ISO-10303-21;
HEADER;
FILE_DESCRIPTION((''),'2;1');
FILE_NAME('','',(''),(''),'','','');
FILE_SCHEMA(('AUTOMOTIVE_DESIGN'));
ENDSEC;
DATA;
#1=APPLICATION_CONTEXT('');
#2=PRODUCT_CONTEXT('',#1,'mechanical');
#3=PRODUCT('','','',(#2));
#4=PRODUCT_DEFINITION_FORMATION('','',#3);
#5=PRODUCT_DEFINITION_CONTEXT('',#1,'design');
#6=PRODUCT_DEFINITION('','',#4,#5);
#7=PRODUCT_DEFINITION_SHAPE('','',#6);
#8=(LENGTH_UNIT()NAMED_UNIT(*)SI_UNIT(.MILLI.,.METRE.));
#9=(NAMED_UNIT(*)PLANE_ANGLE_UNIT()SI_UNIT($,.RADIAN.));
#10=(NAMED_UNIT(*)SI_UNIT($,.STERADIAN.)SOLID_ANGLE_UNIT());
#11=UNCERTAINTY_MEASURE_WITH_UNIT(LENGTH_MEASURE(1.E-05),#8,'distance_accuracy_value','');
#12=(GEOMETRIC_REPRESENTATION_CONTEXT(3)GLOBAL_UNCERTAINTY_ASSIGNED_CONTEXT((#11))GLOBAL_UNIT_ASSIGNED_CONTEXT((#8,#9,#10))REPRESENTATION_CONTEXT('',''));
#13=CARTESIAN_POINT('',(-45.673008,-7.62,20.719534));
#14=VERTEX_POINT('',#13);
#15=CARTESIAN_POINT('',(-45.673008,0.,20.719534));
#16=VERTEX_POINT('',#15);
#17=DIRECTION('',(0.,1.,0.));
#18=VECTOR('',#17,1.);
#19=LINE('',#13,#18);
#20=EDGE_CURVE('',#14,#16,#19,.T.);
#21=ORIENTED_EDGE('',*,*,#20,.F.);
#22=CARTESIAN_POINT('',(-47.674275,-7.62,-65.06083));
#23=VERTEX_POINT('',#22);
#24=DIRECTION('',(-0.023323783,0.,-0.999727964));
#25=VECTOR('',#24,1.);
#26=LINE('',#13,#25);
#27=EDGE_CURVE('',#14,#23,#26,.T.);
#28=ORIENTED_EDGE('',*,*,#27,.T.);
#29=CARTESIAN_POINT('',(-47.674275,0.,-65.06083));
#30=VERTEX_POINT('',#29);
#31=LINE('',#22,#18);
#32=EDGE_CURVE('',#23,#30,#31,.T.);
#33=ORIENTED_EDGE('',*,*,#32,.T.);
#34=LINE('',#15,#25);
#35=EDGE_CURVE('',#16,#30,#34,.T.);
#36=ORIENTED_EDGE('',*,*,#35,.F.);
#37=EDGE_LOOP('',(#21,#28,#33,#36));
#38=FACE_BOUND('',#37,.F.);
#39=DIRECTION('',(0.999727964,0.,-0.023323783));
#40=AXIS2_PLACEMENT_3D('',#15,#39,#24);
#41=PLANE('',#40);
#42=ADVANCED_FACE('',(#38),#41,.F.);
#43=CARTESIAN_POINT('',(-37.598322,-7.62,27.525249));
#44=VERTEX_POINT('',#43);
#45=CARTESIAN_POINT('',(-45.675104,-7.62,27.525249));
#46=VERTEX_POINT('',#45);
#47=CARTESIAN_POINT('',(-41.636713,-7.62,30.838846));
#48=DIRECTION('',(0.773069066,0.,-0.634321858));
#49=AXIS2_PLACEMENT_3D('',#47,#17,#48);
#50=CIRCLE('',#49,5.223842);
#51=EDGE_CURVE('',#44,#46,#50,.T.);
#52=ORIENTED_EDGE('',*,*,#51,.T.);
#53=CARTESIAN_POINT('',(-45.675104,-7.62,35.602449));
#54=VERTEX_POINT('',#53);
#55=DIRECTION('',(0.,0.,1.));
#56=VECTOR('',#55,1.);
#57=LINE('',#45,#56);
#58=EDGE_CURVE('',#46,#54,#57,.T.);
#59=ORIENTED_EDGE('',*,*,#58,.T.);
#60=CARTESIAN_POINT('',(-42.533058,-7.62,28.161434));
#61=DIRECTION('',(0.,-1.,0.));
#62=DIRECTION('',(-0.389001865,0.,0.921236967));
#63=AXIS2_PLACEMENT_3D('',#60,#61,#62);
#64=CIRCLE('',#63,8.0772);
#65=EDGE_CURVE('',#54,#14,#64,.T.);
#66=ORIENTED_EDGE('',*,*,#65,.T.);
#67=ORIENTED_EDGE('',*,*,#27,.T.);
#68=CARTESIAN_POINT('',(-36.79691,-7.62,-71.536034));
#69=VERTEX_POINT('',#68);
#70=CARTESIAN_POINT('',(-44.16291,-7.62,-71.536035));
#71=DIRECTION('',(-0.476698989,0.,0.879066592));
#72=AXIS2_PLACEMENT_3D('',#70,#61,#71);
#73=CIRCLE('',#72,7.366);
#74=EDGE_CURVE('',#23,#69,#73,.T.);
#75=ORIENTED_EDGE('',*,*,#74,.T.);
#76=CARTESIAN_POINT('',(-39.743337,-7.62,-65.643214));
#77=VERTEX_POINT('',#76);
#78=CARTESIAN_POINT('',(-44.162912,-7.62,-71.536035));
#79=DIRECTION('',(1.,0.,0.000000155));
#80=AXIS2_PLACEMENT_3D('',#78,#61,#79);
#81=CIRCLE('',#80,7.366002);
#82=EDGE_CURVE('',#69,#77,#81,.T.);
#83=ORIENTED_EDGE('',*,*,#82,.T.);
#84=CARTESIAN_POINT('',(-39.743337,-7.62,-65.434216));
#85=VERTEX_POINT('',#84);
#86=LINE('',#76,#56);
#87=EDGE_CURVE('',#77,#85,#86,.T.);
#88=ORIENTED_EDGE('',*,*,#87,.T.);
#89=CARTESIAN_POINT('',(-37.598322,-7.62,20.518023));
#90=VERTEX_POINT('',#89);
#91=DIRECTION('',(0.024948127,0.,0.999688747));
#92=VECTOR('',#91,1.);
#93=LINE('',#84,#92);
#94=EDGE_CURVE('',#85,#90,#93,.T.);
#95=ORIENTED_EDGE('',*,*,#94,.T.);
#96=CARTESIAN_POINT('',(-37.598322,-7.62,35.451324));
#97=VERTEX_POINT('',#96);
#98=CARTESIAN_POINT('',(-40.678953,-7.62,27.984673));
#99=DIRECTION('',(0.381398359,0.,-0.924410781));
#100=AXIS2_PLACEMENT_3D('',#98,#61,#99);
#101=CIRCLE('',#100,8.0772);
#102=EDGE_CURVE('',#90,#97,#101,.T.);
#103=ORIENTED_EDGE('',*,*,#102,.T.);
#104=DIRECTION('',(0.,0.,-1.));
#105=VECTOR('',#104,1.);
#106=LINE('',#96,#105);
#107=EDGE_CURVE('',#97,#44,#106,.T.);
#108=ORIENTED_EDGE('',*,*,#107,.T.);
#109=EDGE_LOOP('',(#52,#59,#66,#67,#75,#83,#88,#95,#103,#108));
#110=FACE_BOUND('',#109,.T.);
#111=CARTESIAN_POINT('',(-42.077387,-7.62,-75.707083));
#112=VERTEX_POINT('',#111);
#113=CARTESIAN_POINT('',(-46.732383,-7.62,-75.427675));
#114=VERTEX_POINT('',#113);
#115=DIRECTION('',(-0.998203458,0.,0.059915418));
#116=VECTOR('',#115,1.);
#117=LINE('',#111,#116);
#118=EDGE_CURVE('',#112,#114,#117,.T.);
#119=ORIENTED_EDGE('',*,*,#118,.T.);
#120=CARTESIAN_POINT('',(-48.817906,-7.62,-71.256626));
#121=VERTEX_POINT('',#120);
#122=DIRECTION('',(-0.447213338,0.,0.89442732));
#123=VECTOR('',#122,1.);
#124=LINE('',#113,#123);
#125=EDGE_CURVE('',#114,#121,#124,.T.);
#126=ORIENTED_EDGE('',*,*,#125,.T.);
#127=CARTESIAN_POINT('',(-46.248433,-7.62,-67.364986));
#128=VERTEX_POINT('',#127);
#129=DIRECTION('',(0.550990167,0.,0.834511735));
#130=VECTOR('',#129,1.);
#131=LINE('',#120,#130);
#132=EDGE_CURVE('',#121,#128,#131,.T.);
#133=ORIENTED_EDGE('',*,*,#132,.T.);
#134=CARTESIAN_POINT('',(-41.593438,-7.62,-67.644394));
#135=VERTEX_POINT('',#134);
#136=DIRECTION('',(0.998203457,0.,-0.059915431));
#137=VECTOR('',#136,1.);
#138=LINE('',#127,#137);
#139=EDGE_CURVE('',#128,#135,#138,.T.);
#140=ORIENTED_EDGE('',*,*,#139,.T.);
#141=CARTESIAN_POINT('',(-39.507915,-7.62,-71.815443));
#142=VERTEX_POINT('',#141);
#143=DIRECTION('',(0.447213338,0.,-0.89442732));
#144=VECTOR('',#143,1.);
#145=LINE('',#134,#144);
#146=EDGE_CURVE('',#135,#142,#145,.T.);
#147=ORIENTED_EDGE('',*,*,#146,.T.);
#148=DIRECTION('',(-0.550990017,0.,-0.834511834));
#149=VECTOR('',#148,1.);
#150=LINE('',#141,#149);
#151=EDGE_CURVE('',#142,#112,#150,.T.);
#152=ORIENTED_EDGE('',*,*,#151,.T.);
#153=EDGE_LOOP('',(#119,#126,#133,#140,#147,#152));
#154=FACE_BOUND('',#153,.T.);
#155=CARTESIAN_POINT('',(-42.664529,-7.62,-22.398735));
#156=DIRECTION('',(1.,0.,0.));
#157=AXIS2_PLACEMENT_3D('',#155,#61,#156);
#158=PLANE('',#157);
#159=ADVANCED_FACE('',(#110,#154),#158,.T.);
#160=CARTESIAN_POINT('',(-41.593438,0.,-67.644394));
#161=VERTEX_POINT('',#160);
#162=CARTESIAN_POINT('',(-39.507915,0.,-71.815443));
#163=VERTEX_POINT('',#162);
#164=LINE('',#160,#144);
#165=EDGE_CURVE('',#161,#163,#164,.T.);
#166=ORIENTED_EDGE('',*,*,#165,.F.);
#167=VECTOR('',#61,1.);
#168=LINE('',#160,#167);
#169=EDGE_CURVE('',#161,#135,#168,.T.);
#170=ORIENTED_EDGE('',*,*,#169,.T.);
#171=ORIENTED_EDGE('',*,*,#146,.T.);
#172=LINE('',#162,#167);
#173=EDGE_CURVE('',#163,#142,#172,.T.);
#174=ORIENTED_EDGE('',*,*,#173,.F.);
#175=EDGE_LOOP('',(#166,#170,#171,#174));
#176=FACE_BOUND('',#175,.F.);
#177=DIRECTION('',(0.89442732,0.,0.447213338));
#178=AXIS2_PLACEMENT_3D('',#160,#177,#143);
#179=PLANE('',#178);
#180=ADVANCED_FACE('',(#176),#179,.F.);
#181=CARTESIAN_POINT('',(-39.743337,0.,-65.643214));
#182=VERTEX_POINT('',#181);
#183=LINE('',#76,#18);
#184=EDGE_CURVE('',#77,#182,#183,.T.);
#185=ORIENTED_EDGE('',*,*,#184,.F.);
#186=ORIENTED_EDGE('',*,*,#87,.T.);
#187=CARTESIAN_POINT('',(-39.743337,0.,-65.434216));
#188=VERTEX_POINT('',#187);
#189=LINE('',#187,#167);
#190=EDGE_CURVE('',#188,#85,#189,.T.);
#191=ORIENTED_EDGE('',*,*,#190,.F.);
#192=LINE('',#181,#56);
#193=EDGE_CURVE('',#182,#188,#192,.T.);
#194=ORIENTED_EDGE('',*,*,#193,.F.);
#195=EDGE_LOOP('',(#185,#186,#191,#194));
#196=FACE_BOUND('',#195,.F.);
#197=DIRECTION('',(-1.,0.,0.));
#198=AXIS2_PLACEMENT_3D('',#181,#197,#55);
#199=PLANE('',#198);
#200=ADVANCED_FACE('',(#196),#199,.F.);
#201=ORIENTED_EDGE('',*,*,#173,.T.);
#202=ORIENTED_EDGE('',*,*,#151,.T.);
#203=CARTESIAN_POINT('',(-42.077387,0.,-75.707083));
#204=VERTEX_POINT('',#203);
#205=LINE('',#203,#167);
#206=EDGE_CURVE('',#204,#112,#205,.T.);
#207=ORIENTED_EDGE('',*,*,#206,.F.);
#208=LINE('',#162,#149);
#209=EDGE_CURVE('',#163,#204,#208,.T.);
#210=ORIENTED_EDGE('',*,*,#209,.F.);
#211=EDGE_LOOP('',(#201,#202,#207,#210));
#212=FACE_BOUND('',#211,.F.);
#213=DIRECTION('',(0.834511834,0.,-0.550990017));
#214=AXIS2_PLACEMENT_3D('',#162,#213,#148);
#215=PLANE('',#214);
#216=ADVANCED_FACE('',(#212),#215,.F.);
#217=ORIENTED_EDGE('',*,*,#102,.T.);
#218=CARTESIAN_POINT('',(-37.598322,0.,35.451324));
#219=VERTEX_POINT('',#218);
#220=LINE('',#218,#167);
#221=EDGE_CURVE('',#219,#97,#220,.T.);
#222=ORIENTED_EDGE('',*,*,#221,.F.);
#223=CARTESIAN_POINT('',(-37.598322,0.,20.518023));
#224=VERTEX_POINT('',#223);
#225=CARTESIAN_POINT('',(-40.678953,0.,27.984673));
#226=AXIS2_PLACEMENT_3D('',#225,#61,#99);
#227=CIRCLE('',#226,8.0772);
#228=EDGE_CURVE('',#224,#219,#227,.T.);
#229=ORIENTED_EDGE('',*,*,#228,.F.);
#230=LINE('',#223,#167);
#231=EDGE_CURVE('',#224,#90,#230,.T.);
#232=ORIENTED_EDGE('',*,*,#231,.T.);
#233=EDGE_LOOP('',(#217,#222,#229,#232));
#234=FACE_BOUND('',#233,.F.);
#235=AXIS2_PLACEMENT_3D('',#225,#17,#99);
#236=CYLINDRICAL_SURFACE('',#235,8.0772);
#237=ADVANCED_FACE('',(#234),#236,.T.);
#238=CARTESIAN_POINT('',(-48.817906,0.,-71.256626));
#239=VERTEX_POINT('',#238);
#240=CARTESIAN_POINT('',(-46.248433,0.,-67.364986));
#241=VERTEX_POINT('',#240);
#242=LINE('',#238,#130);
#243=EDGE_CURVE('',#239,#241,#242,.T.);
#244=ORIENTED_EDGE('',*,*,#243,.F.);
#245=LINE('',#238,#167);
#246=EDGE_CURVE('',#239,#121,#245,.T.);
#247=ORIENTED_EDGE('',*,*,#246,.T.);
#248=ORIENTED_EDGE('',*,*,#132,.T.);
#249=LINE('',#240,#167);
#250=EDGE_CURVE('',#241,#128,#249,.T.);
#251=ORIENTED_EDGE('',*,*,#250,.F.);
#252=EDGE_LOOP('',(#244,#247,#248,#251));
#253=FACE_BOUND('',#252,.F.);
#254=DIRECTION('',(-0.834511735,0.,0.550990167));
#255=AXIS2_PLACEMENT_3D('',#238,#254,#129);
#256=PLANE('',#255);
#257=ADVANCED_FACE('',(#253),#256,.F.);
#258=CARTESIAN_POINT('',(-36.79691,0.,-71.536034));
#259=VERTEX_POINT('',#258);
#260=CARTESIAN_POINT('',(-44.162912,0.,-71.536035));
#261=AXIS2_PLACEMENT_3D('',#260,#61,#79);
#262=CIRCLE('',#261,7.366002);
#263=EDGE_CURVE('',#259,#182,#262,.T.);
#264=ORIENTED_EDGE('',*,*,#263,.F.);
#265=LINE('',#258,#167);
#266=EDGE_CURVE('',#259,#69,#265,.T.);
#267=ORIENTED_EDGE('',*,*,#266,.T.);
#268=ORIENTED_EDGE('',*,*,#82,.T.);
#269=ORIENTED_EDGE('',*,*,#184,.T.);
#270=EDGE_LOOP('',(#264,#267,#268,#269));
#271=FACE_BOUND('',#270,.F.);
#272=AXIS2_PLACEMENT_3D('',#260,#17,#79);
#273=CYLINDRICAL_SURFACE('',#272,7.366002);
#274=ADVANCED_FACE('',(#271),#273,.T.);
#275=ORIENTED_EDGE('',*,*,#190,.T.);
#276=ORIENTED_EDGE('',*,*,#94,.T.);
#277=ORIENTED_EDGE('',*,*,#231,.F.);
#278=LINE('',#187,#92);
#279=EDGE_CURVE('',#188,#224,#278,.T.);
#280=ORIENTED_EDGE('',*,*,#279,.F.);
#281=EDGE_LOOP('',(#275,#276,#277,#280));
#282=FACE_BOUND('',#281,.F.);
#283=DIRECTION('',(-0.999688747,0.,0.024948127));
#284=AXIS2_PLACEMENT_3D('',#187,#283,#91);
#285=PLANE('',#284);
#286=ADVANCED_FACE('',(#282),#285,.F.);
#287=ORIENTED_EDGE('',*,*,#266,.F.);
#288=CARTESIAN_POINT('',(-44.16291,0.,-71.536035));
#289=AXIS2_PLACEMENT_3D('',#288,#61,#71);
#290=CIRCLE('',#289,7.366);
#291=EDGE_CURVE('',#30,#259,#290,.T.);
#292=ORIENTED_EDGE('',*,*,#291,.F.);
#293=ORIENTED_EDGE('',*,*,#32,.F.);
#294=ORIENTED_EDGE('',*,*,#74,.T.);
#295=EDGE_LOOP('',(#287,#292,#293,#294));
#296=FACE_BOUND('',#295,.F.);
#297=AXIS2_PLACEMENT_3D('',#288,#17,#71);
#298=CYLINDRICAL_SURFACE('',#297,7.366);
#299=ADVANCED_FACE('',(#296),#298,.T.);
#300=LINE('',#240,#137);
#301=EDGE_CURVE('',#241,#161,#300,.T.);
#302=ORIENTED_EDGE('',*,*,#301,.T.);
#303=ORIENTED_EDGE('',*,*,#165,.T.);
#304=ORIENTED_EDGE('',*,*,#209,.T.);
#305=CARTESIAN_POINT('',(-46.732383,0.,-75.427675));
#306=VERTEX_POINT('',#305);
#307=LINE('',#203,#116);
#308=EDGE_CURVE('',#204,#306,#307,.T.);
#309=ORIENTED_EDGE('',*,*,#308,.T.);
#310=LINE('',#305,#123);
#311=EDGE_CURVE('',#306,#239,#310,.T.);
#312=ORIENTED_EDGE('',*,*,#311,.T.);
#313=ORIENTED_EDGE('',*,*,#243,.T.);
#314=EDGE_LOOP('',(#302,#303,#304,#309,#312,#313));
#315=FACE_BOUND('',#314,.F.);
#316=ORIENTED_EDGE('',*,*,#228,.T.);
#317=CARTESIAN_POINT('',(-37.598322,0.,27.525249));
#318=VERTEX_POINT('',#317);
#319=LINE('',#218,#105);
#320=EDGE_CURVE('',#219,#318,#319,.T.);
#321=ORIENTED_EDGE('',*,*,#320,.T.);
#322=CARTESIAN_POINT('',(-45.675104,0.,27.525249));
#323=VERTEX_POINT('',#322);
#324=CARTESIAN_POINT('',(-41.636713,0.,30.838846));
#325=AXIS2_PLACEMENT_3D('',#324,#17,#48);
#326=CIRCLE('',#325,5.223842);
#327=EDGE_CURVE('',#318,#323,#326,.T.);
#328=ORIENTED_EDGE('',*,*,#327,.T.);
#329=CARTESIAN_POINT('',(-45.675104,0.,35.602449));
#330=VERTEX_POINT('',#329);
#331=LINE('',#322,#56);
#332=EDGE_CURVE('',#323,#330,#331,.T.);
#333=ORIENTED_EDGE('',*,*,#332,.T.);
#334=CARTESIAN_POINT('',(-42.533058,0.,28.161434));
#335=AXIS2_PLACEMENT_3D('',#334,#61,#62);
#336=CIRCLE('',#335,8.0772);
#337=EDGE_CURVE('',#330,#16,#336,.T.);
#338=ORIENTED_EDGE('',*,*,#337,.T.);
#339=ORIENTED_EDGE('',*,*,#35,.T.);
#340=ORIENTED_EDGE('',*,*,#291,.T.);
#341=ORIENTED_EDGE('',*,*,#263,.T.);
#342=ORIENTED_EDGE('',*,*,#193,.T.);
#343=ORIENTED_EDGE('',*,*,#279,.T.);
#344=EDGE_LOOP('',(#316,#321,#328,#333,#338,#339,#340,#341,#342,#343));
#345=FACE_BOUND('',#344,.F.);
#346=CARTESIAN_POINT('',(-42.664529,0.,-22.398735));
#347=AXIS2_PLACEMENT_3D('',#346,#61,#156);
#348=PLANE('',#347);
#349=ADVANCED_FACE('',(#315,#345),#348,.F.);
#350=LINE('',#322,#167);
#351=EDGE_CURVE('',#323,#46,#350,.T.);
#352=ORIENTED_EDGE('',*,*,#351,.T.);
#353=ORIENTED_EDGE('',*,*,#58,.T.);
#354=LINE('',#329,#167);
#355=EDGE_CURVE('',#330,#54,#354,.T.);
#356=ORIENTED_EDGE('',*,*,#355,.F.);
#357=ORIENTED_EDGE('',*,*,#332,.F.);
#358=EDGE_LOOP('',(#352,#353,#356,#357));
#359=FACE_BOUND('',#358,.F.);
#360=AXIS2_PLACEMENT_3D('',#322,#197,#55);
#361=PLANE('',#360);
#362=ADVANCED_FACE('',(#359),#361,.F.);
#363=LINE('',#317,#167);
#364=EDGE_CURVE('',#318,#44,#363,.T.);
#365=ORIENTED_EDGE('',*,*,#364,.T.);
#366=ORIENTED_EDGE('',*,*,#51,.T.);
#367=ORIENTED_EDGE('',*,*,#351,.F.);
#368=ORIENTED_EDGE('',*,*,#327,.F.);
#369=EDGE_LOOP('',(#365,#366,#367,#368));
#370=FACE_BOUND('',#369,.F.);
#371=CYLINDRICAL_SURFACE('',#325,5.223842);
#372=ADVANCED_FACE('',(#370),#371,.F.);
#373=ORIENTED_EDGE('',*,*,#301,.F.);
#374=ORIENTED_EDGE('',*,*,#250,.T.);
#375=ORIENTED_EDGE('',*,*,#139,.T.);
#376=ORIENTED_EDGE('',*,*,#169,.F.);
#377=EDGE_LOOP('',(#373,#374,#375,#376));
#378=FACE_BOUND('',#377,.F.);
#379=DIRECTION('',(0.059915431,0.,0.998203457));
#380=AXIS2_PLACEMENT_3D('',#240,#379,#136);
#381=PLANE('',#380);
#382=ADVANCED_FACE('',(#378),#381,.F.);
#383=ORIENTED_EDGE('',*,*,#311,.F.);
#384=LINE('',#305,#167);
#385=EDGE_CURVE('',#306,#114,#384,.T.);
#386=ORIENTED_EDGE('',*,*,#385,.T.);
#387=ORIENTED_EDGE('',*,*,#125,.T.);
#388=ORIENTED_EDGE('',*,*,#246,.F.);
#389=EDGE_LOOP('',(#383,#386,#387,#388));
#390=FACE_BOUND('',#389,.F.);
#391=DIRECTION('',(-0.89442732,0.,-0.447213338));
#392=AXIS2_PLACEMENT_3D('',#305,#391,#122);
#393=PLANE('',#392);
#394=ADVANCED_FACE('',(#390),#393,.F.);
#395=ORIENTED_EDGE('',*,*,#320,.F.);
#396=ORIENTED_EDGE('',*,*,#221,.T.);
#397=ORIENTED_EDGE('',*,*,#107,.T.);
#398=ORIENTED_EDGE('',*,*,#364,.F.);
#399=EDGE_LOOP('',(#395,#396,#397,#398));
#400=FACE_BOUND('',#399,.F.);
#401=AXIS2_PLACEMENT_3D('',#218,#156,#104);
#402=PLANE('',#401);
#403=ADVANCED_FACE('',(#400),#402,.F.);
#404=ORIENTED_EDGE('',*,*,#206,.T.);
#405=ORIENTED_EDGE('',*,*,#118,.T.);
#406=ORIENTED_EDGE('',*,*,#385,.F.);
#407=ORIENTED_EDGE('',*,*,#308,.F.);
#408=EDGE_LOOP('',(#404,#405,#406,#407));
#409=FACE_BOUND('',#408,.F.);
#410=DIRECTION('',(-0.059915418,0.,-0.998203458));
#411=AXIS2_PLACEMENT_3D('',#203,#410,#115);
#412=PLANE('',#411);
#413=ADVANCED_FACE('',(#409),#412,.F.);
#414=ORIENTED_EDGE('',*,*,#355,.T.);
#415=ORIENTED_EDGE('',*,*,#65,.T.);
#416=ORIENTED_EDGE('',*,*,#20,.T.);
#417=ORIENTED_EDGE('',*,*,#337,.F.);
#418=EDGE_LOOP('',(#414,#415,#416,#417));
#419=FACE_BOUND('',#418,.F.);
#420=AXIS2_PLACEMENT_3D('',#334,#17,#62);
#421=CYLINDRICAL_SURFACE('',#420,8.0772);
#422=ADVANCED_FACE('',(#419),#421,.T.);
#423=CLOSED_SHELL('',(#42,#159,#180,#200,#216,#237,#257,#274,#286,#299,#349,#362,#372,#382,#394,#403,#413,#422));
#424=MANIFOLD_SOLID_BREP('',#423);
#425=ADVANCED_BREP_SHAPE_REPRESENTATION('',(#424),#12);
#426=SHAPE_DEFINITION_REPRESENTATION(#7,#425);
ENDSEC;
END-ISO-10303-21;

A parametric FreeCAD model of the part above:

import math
import FreeCAD as App
import Part
import Sketcher

V = App.Vector
Q = App.Units.Quantity


def add_polygon(sketch, points):
    """Adds a closed chain of lines whose ends are joined by coincident constraints."""
    first, n = sketch.GeometryCount, len(points)
    for a, b in zip(points, points[1:] + points[:1]):
        sketch.addGeometry(Part.LineSegment(App.Vector(*a, 0), App.Vector(*b, 0)), False)
    for i in range(n):
        sketch.addConstraint(Sketcher.Constraint("Coincident", first + i, 2, first + (i + 1) % n, 1))

doc = App.newDocument("Part")
body = doc.addObject("PartDesign::Body", "Body")

sketch1 = body.newObject("Sketcher::SketchObject", "Sketch")
sketch1.AttachmentSupport = (doc.getObject("XZ_Plane"), [""])
sketch1.MapMode = "FlatFace"
sketch1.addGeometry([
    Part.LineSegment(V(-39.74, -65.64, 0), V(-39.74, -65.43, 0)),
    Part.LineSegment(V(-39.74, -65.43, 0), V(-37.6, 20.52, 0)),
    Part.LineSegment(V(-37.6, 20.52, 0), V(-45.67, 20.72, 0)),
    Part.LineSegment(V(-45.67, 20.72, 0), V(-47.67, -65.06, 0)),
    Part.ArcOfCircle(Part.Circle(V(-44.16, -71.54, 0), V(0, 0, 1), 7.37), math.radians(53), math.radians(118)),
], False)
sketch1.addConstraint([
    Sketcher.Constraint("Coincident", 0, 2, 1, 1),
    Sketcher.Constraint("Coincident", 1, 2, 2, 1),
    Sketcher.Constraint("Coincident", 2, 2, 3, 1),
    Sketcher.Constraint("Coincident", 3, 2, 4, 2),
    Sketcher.Constraint("Coincident", 4, 1, 0, 1),
    Sketcher.Constraint("Vertical", 0),
    Sketcher.Constraint("Perpendicular", 1, 2),
    Sketcher.Constraint("Radius", 4, Q("0.29 in")),
    Sketcher.Constraint("Distance", 1, Q("3.385 in")),
    Sketcher.Constraint("Distance", 2, Q("0.318 in")),
    Sketcher.Constraint("DistanceX", 2, 2, 4, 3, Q("1.510098 mm")),
    Sketcher.Constraint("DistanceY", 4, 1, 0, 2, Q("0.208998 mm")),
    Sketcher.Constraint("DistanceX", 4, 3, -1, 1, Q("44.16291 mm")),
    Sketcher.Constraint("DistanceY", 3, 2, -1, 1, Q("65.06083 mm")),
    Sketcher.Constraint("DistanceY", 4, 3, 0, 2, Q("6.101818 mm")),
    Sketcher.Constraint("DistanceX", 3, 2, 0, 2, Q("7.930938 mm")),
])
pad1 = body.newObject("PartDesign::Pad", "Pad")
pad1.Profile = sketch1
pad1.Length = Q("0.25 in")

sketch2 = body.newObject("Sketcher::SketchObject", "Sketch001")
sketch2.AttachmentSupport = (doc.getObject("XZ_Plane"), [""])
sketch2.MapMode = "FlatFace"
sketch2.addGeometry(Part.LineSegment(V(-39.74, -65.64, 0), V(-39.74, -65.43, 0)), False)
sketch2.addGeometry(Part.LineSegment(V(-39.74, -65.43, 0), V(-37.6, 20.52, 0)), False)
sketch2.addGeometry(Part.ArcOfCircle(Part.Circle(V(-40.68, 27.98, 0), V(0, 0, 1), 8.08), math.radians(-68), math.radians(68)), False)
sketch2.addGeometry(Part.LineSegment(V(-37.6, 35.45, 0), V(-37.6, 27.53, 0)), False)
sketch2.addGeometry(Part.ArcOfCircle(Part.Circle(V(-41.64, 30.84, 0), V(0, 0, 1), 5.22), math.radians(-141), math.radians(-39)), False)
sketch2.addGeometry(Part.LineSegment(V(-45.68, 27.53, 0), V(-45.68, 35.6, 0)), False)
sketch2.addGeometry(Part.ArcOfCircle(Part.Circle(V(-42.53, 28.16, 0), V(0, 0, 1), 8.08), math.radians(113), math.radians(247)), False)
sketch2.addGeometry(Part.LineSegment(V(-45.67, 20.72, 0), V(-47.67, -65.06, 0)), False)
sketch2.addGeometry(Part.ArcOfCircle(Part.Circle(V(-44.16, -71.54, 0), V(0, 0, 1), 7.37), math.radians(118), math.radians(360)), False)
sketch2.addGeometry(Part.ArcOfCircle(Part.Circle(V(-44.16, -71.54, 0), V(0, 0, 1), 7.37), math.radians(0), math.radians(53)), False)
add_polygon(sketch2, [(-48.82, -71.26), (-46.25, -67.36), (-41.59, -67.64), (-39.51, -71.82), (-42.08, -75.71), (-46.73, -75.43)])
sketch2.addConstraint([
    Sketcher.Constraint("Coincident", 0, 2, 1, 1),
    Sketcher.Constraint("Coincident", 1, 2, 2, 1),
    Sketcher.Constraint("Coincident", 2, 2, 3, 1),
    Sketcher.Constraint("Coincident", 3, 2, 4, 2),
    Sketcher.Constraint("Coincident", 4, 1, 5, 1),
    Sketcher.Constraint("Coincident", 5, 2, 6, 1),
    Sketcher.Constraint("Coincident", 6, 2, 7, 1),
    Sketcher.Constraint("Coincident", 7, 2, 8, 1),
    Sketcher.Constraint("Tangent", 8, 2, 9, 1),
    Sketcher.Constraint("Coincident", 9, 2, 0, 1),
    Sketcher.Constraint("Vertical", 0),
    Sketcher.Constraint("Vertical", 3),
    Sketcher.Constraint("Vertical", 5),
    Sketcher.Constraint("Equal", 2, 6),
    Sketcher.Constraint("Equal", 8, 9),
    Sketcher.Constraint("Parallel", 10, 13),
    Sketcher.Constraint("Parallel", 11, 14),
    Sketcher.Constraint("Parallel", 12, 15),
    Sketcher.Constraint("Horizontal", 3, 2, 4, 1),
    Sketcher.Constraint("Horizontal", 9, 3, 8, 2),
    Sketcher.Constraint("Vertical", 1, 2, 2, 2),
    Sketcher.Constraint("Equal", 10, 11),
    Sketcher.Constraint("Equal", 11, 12),
    Sketcher.Constraint("Equal", 12, 13),
    Sketcher.Constraint("Radius", 8, Q("0.29 in")),
    Sketcher.Constraint("Radius", 2, Q("0.318 in")),
    Sketcher.Constraint("DistanceY", 5, 1, 5, 2, Q("0.318 in")),
    Sketcher.Constraint("Distance", 1, Q("3.385 in")),
    Sketcher.Constraint("Radius", 4, Q("5.223842 mm")),
    Sketcher.Constraint("DistanceX", 9, 3, 4, 3, Q("2.526199 mm")),
    Sketcher.Constraint("DistanceY", 1, 2, 2, 2, Q("14.933301 mm")),
    Sketcher.Constraint("DistanceY", 6, 2, 6, 3, Q("7.4419 mm")),
    Sketcher.Constraint("DistanceY", 9, 2, 0, 2, Q("0.208998 mm")),
    Sketcher.Constraint("DistanceX", 11, 2, 9, 2, Q("1.850101 mm")),
    Sketcher.Constraint("DistanceY", 3, 2, 3, 1, Q("7.926075 mm")),
    Sketcher.Constraint("DistanceX", 6, 3, -1, 1, Q("42.533058 mm")),
    Sketcher.Constraint("DistanceX", 8, 3, -1, 1, Q("44.16291 mm")),
    Sketcher.Constraint("DistanceX", 2, 2, -1, 1, Q("37.598322 mm")),
    Sketcher.Constraint("DistanceY", -1, 1, 3, 2, Q("27.525249 mm")),
    Sketcher.Constraint("DistanceY", 7, 2, -1, 1, Q("65.06083 mm")),
    Sketcher.Constraint("DistanceY", 8, 3, 2, 3, Q("99.520708 mm")),
    Sketcher.Constraint("DistanceX", 10, 2, 9, 3, Q("2.085521 mm")),
    Sketcher.Constraint("DistanceY", 9, 3, 10, 2, Q("4.171049 mm")),
    Sketcher.Constraint("DistanceY", 11, 2, 9, 2, Q("2.00118 mm")),
    Sketcher.Constraint("DistanceY", 12, 2, 8, 2, Q("0.279409 mm")),
    Sketcher.Constraint("DistanceY", 13, 2, 12, 2, Q("3.89164 mm")),
])
pad2 = body.newObject("PartDesign::Pad", "Pad001")
pad2.Profile = sketch2
pad2.Length = Q("0.3 in")

doc.recompute()
